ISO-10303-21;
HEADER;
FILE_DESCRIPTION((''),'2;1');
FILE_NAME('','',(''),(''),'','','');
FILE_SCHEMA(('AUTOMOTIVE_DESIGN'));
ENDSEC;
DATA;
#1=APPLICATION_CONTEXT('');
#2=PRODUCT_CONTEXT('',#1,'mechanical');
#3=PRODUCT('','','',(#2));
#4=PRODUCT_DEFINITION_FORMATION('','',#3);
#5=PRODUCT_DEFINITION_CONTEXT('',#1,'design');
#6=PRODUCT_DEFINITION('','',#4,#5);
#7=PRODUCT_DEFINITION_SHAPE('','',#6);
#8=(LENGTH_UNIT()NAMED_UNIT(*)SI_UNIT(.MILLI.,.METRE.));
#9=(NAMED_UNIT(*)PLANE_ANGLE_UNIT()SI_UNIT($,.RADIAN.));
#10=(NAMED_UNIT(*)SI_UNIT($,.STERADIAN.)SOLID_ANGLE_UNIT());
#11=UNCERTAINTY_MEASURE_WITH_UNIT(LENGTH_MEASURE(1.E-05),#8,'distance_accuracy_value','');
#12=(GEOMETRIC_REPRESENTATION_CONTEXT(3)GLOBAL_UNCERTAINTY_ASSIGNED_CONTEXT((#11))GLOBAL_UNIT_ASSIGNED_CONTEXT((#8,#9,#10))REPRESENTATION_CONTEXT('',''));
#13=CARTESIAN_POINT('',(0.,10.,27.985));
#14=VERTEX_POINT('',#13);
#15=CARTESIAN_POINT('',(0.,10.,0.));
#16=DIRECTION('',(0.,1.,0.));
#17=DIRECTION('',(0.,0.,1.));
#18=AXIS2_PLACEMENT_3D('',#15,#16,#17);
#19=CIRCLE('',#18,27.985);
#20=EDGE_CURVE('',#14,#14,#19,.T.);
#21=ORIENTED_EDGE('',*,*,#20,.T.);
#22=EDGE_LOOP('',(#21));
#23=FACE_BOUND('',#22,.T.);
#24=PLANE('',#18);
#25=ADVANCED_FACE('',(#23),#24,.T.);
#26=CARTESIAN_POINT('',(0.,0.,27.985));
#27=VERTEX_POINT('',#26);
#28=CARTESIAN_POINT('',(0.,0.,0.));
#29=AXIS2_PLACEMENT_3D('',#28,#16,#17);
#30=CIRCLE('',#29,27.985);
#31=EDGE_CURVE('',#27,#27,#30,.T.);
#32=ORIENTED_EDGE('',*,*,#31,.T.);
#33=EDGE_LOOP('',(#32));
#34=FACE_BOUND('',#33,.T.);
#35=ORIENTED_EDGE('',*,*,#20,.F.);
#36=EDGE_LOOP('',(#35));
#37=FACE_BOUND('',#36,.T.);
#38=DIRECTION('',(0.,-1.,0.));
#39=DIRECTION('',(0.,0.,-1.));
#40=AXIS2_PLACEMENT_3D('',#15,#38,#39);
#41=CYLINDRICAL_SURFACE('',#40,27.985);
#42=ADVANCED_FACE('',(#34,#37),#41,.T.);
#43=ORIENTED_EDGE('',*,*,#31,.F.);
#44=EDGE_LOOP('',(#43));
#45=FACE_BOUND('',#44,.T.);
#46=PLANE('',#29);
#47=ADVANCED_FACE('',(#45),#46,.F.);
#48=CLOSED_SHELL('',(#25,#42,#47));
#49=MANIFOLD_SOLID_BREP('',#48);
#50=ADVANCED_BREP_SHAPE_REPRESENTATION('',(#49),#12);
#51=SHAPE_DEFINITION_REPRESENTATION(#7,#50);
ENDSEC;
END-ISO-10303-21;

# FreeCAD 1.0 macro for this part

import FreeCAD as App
import Part
import Sketcher

V = App.Vector
Q = App.Units.Quantity

doc = App.newDocument("Part")
body = doc.addObject("PartDesign::Body", "Body")

# Sketch on XZ plane
sketch1 = body.newObject("Sketcher::SketchObject", "Sketch")
sketch1.AttachmentSupport = (doc.getObject("XZ_Plane"), [""])
sketch1.MapMode = "FlatFace"
sketch1.addGeometry(Part.Circle(V(0, 0, 0), V(0, 0, 1), 27.985), False)
sketch1.addConstraint(Sketcher.Constraint("Coincident", 0, 3, -1, 1))
sketch1.addConstraint(Sketcher.Constraint("Diameter", 0, Q("55.97 mm")))
pad1 = body.newObject("PartDesign::Pad", "Pad")
pad1.Profile = sketch1
pad1.Length = 10
pad1.Reversed = True

doc.recompute()
